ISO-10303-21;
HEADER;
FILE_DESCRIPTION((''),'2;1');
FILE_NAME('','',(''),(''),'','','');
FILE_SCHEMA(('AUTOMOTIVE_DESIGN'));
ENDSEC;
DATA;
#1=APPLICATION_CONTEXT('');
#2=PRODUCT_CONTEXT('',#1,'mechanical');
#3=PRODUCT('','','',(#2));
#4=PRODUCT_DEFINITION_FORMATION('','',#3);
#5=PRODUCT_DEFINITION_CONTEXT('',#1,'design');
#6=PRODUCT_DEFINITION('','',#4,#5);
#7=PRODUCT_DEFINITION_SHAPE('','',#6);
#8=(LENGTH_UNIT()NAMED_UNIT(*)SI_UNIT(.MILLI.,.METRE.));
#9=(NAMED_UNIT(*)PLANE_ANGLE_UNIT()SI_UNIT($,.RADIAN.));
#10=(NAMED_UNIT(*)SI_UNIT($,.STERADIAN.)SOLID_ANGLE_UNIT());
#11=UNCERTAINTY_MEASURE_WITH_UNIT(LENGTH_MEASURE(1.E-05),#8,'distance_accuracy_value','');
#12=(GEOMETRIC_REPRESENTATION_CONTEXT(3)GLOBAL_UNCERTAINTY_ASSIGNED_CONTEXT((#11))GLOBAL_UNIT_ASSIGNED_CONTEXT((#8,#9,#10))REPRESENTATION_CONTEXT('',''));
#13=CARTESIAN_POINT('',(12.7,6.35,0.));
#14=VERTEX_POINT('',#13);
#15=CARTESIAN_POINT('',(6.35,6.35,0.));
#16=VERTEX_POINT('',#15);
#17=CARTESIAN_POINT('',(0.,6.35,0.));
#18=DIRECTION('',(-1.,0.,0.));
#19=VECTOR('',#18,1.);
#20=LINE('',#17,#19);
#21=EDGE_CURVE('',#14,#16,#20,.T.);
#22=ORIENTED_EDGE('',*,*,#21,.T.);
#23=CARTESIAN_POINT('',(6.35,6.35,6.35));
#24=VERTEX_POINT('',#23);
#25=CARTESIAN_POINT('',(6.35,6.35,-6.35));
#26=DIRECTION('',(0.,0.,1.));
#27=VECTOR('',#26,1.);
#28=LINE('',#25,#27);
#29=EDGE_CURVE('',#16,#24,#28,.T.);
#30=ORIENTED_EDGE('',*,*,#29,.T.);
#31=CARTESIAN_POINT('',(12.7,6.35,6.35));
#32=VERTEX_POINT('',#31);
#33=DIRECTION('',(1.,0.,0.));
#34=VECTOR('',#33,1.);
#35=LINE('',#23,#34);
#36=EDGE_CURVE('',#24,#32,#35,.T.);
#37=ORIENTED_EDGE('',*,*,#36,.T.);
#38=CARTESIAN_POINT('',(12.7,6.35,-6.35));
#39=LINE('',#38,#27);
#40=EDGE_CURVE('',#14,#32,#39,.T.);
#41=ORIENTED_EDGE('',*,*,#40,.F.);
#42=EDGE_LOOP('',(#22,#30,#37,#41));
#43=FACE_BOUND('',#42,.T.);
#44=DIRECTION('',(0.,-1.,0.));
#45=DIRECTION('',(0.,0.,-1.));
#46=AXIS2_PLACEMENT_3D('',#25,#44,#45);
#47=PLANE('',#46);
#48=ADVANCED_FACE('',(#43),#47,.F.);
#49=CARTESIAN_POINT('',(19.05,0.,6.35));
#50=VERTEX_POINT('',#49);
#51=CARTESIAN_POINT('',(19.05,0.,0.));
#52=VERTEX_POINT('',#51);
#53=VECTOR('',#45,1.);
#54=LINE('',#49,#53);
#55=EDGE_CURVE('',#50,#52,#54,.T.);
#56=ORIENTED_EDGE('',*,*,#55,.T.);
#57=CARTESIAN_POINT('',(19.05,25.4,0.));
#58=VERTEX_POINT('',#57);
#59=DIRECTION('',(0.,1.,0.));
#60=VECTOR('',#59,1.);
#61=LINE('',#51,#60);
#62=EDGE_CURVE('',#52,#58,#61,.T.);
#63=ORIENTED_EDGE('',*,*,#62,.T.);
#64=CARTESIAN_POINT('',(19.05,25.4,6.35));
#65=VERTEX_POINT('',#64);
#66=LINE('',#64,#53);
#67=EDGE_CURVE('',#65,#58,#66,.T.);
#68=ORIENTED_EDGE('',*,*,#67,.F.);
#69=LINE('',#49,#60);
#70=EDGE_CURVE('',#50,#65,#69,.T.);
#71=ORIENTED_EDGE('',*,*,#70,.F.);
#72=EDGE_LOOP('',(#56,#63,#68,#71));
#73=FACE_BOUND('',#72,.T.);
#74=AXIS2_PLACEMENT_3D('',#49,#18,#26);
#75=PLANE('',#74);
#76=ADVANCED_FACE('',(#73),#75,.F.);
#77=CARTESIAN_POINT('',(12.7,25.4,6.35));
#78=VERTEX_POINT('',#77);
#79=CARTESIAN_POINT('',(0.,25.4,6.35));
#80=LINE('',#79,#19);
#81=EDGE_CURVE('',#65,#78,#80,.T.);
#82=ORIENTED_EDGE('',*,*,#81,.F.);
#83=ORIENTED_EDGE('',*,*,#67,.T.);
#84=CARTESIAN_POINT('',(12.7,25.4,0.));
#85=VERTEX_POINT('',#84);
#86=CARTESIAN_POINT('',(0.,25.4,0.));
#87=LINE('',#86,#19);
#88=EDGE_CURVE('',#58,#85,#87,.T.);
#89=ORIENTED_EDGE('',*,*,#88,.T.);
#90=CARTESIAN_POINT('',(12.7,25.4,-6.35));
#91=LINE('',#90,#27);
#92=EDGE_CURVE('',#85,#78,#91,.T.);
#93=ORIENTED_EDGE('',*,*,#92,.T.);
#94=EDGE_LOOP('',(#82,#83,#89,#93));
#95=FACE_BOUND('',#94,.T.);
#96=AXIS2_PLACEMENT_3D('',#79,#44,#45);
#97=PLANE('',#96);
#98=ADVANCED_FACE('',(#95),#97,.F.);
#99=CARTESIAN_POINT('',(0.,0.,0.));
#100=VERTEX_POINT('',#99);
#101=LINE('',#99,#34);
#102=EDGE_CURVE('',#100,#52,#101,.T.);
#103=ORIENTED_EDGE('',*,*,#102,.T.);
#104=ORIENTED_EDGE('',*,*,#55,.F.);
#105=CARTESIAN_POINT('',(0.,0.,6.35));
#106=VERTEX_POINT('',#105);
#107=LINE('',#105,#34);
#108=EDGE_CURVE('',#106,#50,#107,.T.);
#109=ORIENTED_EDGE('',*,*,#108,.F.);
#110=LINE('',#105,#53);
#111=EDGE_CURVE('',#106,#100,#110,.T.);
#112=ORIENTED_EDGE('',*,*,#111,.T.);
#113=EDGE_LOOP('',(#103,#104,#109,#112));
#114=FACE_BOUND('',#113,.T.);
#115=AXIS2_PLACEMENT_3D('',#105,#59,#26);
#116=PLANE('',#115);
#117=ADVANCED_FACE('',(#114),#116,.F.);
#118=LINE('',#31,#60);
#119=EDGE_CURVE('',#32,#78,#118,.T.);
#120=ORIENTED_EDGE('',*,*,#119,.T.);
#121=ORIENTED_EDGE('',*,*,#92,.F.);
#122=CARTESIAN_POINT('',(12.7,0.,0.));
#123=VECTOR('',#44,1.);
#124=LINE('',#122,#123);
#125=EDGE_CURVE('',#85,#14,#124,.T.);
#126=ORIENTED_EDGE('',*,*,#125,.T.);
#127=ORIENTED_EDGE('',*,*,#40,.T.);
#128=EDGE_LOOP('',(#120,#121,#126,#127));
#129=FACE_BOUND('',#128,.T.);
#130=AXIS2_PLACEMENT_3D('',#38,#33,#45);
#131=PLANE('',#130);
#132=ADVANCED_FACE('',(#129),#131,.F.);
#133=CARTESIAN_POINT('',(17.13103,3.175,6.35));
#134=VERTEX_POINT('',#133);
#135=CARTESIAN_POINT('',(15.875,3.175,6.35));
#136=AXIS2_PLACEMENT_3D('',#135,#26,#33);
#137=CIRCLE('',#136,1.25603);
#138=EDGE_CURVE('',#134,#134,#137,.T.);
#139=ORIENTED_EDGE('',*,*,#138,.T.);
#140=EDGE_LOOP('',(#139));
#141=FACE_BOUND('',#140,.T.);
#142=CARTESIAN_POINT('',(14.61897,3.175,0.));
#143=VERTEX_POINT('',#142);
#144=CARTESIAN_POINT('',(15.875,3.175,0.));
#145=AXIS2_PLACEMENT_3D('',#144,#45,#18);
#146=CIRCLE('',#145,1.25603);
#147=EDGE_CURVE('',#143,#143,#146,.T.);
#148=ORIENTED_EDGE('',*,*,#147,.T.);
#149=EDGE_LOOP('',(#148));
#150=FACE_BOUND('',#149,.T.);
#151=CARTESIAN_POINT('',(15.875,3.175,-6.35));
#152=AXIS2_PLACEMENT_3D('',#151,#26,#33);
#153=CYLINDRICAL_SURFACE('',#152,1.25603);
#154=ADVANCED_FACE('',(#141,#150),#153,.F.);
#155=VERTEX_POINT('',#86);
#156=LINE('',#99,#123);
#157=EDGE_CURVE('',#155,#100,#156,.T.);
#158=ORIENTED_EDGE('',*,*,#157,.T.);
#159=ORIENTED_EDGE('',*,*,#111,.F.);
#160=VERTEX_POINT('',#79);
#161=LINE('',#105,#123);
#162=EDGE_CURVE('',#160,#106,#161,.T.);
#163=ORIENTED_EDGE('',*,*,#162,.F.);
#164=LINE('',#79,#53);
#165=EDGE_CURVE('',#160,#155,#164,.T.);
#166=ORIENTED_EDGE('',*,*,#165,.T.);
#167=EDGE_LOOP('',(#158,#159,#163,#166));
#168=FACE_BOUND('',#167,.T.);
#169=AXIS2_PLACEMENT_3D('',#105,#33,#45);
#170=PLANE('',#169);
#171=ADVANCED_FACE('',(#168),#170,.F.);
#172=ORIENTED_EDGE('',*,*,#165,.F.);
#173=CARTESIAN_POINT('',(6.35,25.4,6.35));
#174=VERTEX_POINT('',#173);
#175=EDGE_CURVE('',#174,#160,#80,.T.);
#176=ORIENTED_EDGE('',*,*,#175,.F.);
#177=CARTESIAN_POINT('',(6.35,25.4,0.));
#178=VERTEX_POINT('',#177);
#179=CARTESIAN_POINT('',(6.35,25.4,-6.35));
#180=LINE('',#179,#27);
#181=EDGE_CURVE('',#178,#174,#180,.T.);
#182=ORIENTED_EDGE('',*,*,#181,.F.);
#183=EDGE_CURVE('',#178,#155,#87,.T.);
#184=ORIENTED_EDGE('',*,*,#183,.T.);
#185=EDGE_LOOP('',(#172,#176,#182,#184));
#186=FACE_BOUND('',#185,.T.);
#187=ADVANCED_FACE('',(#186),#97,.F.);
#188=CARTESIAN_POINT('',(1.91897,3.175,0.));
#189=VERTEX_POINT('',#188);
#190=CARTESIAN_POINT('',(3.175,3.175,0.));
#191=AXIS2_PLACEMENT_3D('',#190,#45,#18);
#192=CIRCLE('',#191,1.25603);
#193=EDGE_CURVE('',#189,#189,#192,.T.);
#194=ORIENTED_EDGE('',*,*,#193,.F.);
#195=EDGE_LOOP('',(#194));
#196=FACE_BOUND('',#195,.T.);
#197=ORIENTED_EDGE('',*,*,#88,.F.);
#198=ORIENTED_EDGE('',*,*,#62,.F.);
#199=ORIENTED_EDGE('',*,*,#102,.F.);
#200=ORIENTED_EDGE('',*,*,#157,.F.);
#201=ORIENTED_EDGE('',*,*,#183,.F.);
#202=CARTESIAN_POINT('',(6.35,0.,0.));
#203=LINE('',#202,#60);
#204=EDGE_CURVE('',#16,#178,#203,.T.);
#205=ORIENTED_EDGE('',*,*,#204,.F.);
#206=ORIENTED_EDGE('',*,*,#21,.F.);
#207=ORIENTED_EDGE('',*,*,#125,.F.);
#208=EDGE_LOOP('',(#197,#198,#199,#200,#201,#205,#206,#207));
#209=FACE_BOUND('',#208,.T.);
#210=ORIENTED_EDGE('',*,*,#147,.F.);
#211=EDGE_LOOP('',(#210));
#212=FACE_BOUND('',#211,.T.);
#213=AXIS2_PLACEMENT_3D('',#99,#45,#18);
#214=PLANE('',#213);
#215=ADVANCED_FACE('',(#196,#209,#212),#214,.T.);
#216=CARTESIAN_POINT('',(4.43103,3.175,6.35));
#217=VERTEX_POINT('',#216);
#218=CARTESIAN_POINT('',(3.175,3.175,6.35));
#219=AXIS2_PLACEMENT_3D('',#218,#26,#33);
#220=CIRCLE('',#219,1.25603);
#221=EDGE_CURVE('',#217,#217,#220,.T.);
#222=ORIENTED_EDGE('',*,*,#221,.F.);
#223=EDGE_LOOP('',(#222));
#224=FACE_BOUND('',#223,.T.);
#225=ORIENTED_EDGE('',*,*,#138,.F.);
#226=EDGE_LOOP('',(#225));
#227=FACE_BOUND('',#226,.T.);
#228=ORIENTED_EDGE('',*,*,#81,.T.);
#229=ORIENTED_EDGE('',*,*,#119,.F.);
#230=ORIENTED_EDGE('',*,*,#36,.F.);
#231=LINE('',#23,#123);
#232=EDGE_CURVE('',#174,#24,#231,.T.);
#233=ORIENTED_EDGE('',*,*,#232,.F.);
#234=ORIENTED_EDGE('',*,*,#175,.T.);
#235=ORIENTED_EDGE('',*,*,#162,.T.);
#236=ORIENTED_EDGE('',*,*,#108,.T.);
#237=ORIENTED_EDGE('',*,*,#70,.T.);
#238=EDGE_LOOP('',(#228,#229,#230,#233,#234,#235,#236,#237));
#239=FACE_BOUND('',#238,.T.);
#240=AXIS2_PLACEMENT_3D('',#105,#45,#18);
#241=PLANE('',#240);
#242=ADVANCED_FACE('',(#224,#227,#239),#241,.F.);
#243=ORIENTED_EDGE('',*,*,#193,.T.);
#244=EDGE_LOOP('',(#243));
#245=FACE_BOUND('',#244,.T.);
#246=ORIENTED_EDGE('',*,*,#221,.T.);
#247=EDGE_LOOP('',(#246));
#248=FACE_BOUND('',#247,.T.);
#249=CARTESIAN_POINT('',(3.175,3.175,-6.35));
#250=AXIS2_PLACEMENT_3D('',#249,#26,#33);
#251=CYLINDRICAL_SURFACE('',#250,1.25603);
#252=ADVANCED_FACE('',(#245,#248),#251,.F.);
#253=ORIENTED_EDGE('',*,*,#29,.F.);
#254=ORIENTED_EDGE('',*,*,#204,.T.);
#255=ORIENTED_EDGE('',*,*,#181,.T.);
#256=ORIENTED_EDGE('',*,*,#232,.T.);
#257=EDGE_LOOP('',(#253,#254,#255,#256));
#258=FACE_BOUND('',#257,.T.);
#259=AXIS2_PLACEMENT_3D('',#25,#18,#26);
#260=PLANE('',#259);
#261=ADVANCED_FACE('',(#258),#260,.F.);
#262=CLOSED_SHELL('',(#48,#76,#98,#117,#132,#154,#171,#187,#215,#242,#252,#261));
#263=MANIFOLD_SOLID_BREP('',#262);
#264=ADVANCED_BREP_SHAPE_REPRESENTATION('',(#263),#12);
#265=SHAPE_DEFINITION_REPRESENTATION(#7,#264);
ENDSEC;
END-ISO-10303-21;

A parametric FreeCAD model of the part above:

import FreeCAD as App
import Part
import Sketcher
from FreeCAD import Vector
Q = App.Units.Quantity

doc = App.newDocument("Part")
body = doc.addObject("PartDesign::Body", "Body")

# Sketch on XY plane
sketch1 = doc.addObject("Sketcher::SketchObject", "Sketch")
body.addObject(sketch1)
sketch1.AttachmentSupport = (doc.XY_Plane, [""])
sketch1.MapMode = "FlatFace"
sketch1.addGeometry([
    Part.LineSegment(Vector(0, 25, 0), Vector(0, 0, 0)),
    Part.LineSegment(Vector(0, 0, 0), Vector(19, 0, 0)),
    Part.LineSegment(Vector(19, 0, 0), Vector(19, 25, 0)),
    Part.LineSegment(Vector(19, 25, 0), Vector(0, 25, 0)),
], False)
sketch1.addConstraint([
    Sketcher.Constraint("Coincident", 0, 2, 1, 1),
    Sketcher.Constraint("Coincident", 1, 2, 2, 1),
    Sketcher.Constraint("Coincident", 2, 2, 3, 1),
    Sketcher.Constraint("Coincident", 3, 2, 0, 1),
    Sketcher.Constraint("Vertical", 0),
    Sketcher.Constraint("Horizontal", 1),
    Sketcher.Constraint("Vertical", 2),
    Sketcher.Constraint("Horizontal", 3),
    Sketcher.Constraint("Coincident", 0, 2, -1, 1),
    Sketcher.Constraint("DistanceY", 0, 2, 0, 1, Q("1 in")),
    Sketcher.Constraint("DistanceX", 1, 1, 1, 2, Q("0.75 in")),
])
pad1 = doc.addObject("PartDesign::Pad", "Pad")
body.addObject(pad1)
pad1.Profile = sketch1
pad1.Length = Q("0.25 in")

# Sketch on XY plane
sketch2 = doc.addObject("Sketcher::SketchObject", "Sketch001")
body.addObject(sketch2)
sketch2.AttachmentSupport = (doc.XY_Plane, [""])
sketch2.MapMode = "FlatFace"
sketch2.AttachmentOffset = App.Placement(Vector(0, 0, 0.25 * 25.4), App.Rotation())
sketch2.addGeometry([
    Part.LineSegment(Vector(6, 25, 0), Vector(6, 6, 0)),
    Part.LineSegment(Vector(6, 6, 0), Vector(13, 6, 0)),
    Part.LineSegment(Vector(13, 6, 0), Vector(13, 25, 0)),
    Part.LineSegment(Vector(13, 25, 0), Vector(6, 25, 0)),
], False)
sketch2.addConstraint([
    Sketcher.Constraint("Coincident", 0, 2, 1, 1),
    Sketcher.Constraint("Coincident", 1, 2, 2, 1),
    Sketcher.Constraint("Coincident", 2, 2, 3, 1),
    Sketcher.Constraint("Coincident", 3, 2, 0, 1),
    Sketcher.Constraint("Vertical", 0),
    Sketcher.Constraint("Horizontal", 1),
    Sketcher.Constraint("Vertical", 2),
    Sketcher.Constraint("Horizontal", 3),
    Sketcher.Constraint("DistanceY", -1, 1, 2, 2, Q("1 in")),
    Sketcher.Constraint("DistanceX", 1, 1, 1, 2, Q("0.25 in")),
    Sketcher.Constraint("DistanceY", 0, 2, 0, 1, Q("0.75 in")),
    Sketcher.Constraint("DistanceX", -1, 1, 1, 2, Q("0.5 in")),
])
pocket1 = doc.addObject("PartDesign::Pocket", "Pocket")
body.addObject(pocket1)
pocket1.Profile = sketch2
pocket1.Length = Q("0.5 in")

# Sketch on XY plane
sketch3 = doc.addObject("Sketcher::SketchObject", "Sketch002")
body.addObject(sketch3)
sketch3.AttachmentSupport = (doc.XY_Plane, [""])
sketch3.MapMode = "FlatFace"
sketch3.AttachmentOffset = App.Placement(Vector(0, 0, 0.25 * 25.4), App.Rotation())
sketch3.addGeometry([
    Part.Circle(Vector(3.2, 3.2, 0), Vector(0, 0, 1), 1.3),
    Part.Circle(Vector(15.9, 3.2, 0), Vector(0, 0, 1), 1.3),
], False)
sketch3.addConstraint([
    Sketcher.Constraint("Equal", 0, 1),
    Sketcher.Constraint("Horizontal", 0, 3, 1, 3),
    Sketcher.Constraint("Diameter", 0, Q("0.0989 in")),
    Sketcher.Constraint("DistanceX", 0, 3, 1, 3, Q("0.5 in")),
    Sketcher.Constraint("DistanceX", -1, 1, 0, 3, Q("0.125 in")),
    Sketcher.Constraint("DistanceY", -1, 1, 0, 3, Q("0.125 in")),
])
pocket2 = doc.addObject("PartDesign::Pocket", "Pocket001")
body.addObject(pocket2)
pocket2.Profile = sketch3
pocket2.Length = Q("0.5 in")

doc.recompute()
